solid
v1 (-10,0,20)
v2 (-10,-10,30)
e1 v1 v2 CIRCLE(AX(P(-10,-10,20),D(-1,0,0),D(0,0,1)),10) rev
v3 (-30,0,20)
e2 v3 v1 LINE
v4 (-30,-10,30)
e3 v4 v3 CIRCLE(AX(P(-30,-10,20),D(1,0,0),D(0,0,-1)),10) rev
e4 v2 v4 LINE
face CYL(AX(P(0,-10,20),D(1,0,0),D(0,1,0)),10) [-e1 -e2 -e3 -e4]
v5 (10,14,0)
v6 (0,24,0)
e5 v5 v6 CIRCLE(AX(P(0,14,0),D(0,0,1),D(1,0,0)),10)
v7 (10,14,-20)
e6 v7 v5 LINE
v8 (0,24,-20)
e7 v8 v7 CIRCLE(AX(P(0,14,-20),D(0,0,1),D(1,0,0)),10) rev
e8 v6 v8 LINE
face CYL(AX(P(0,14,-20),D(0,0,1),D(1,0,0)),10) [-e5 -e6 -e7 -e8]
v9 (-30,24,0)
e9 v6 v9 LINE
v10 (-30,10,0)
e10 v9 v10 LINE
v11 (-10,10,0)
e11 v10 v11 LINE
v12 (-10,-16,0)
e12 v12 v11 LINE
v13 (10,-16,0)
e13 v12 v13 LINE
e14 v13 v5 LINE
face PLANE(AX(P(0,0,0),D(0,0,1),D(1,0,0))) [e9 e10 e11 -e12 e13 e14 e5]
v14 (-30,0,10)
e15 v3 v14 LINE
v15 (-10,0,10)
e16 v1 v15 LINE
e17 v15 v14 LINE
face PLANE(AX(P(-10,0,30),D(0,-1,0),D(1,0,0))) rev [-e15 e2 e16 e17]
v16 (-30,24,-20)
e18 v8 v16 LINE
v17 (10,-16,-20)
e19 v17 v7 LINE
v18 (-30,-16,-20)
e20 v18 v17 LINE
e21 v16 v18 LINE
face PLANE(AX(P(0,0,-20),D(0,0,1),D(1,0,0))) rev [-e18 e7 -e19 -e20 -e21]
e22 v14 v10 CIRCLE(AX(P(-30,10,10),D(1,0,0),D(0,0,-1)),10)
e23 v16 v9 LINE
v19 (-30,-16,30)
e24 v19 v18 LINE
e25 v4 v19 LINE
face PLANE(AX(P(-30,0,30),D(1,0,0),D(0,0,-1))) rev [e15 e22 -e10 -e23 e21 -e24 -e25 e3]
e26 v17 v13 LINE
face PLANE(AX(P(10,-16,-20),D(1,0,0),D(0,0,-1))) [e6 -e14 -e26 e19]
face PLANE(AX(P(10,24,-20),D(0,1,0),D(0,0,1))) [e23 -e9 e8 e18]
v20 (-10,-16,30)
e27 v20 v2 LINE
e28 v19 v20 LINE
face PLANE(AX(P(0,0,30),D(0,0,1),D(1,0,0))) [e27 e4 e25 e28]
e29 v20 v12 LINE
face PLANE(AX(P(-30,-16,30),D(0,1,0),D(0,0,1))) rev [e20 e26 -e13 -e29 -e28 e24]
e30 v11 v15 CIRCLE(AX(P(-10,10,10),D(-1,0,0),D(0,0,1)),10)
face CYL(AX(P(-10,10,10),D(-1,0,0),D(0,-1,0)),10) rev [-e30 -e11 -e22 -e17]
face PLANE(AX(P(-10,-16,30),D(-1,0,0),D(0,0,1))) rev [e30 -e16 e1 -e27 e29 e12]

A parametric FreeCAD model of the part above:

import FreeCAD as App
import Part
import Sketcher
Q = App.Units.Quantity


def edges_at(feature, points):
    """Names of the edges that pass closest to the given points."""
    edges = feature.Shape.Edges
    near = lambda p: min(range(len(edges)), key=lambda i: edges[i].distToShape(Part.Vertex(*p))[0])
    return sorted({f"Edge{near(p) + 1}" for p in points})

doc = App.newDocument("Part")
body = doc.addObject("PartDesign::Body", "Body")

sketch1 = doc.addObject("Sketcher::SketchObject", "Sketch")
body.addObject(sketch1)
sketch1.AttachmentSupport = (doc.XY_Plane, [""])
sketch1.MapMode = "FlatFace"
sketch1.addGeometry(Part.LineSegment(App.Vector(-30, 0, 0), App.Vector(-30, -16, 0)), False)
sketch1.addGeometry(Part.LineSegment(App.Vector(-30, -16, 0), App.Vector(-10, -16, 0)), False)
sketch1.addGeometry(Part.LineSegment(App.Vector(-10, -16, 0), App.Vector(-10, 0, 0)), False)
sketch1.addGeometry(Part.LineSegment(App.Vector(-10, 0, 0), App.Vector(-30, 0, 0)), False)
sketch1.addConstraint(Sketcher.Constraint("Coincident", 0, 2, 1, 1))
sketch1.addConstraint(Sketcher.Constraint("Coincident", 1, 2, 2, 1))
sketch1.addConstraint(Sketcher.Constraint("Coincident", 2, 2, 3, 1))
sketch1.addConstraint(Sketcher.Constraint("Coincident", 3, 2, 0, 1))
sketch1.addConstraint(Sketcher.Constraint("Vertical", 0))
sketch1.addConstraint(Sketcher.Constraint("Horizontal", 1))
sketch1.addConstraint(Sketcher.Constraint("Vertical", 2))
sketch1.addConstraint(Sketcher.Constraint("Horizontal", 3))
sketch1.addConstraint(Sketcher.Constraint("PointOnObject", 2, 2, -1))
sketch1.addConstraint(Sketcher.Constraint("DistanceX", 1, 1, 1, 2, Q("20 mm")))
sketch1.addConstraint(Sketcher.Constraint("DistanceY", 0, 2, 0, 1, Q("16 mm")))
sketch1.addConstraint(Sketcher.Constraint("DistanceX", 0, 2, -1, 1, Q("30 mm")))
pad1 = doc.addObject("PartDesign::Pad", "Pad")
body.addObject(pad1)
pad1.Profile = sketch1
pad1.Length = 30

sketch2 = doc.addObject("Sketcher::SketchObject", "Sketch001")
body.addObject(sketch2)
sketch2.AttachmentSupport = (doc.XY_Plane, [""])
sketch2.MapMode = "FlatFace"
sketch2.addGeometry(Part.LineSegment(App.Vector(-30, 24, 0), App.Vector(-30, -16, 0)), False)
sketch2.addGeometry(Part.LineSegment(App.Vector(-30, -16, 0), App.Vector(10, -16, 0)), False)
sketch2.addGeometry(Part.LineSegment(App.Vector(10, -16, 0), App.Vector(10, 24, 0)), False)
sketch2.addGeometry(Part.LineSegment(App.Vector(10, 24, 0), App.Vector(-30, 24, 0)), False)
sketch2.addConstraint(Sketcher.Constraint("Coincident", 0, 2, 1, 1))
sketch2.addConstraint(Sketcher.Constraint("Coincident", 1, 2, 2, 1))
sketch2.addConstraint(Sketcher.Constraint("Coincident", 2, 2, 3, 1))
sketch2.addConstraint(Sketcher.Constraint("Coincident", 3, 2, 0, 1))
sketch2.addConstraint(Sketcher.Constraint("Vertical", 0))
sketch2.addConstraint(Sketcher.Constraint("Horizontal", 1))
sketch2.addConstraint(Sketcher.Constraint("Vertical", 2))
sketch2.addConstraint(Sketcher.Constraint("Horizontal", 3))
sketch2.addConstraint(Sketcher.Constraint("Equal", 3, 0))
sketch2.addConstraint(Sketcher.Constraint("DistanceX", 1, 1, 1, 2, Q("40 mm")))
sketch2.addConstraint(Sketcher.Constraint("DistanceX", 0, 2, -1, 1, Q("30 mm")))
sketch2.addConstraint(Sketcher.Constraint("DistanceY", 0, 2, -1, 1, Q("16 mm")))
pad2 = doc.addObject("PartDesign::Pad", "Pad001")
body.addObject(pad2)
pad2.Profile = sketch2
pad2.Length = 20
pad2.Reversed = True
doc.recompute()

fillet = doc.addObject("PartDesign::Fillet", "Fillet")
body.addObject(fillet)
fillet.Base = (pad2, edges_at(pad2, [(10, 24, -10), (-20, 0, 30), (-20, 0, 0)]))
fillet.Radius = 10

doc.recompute()
